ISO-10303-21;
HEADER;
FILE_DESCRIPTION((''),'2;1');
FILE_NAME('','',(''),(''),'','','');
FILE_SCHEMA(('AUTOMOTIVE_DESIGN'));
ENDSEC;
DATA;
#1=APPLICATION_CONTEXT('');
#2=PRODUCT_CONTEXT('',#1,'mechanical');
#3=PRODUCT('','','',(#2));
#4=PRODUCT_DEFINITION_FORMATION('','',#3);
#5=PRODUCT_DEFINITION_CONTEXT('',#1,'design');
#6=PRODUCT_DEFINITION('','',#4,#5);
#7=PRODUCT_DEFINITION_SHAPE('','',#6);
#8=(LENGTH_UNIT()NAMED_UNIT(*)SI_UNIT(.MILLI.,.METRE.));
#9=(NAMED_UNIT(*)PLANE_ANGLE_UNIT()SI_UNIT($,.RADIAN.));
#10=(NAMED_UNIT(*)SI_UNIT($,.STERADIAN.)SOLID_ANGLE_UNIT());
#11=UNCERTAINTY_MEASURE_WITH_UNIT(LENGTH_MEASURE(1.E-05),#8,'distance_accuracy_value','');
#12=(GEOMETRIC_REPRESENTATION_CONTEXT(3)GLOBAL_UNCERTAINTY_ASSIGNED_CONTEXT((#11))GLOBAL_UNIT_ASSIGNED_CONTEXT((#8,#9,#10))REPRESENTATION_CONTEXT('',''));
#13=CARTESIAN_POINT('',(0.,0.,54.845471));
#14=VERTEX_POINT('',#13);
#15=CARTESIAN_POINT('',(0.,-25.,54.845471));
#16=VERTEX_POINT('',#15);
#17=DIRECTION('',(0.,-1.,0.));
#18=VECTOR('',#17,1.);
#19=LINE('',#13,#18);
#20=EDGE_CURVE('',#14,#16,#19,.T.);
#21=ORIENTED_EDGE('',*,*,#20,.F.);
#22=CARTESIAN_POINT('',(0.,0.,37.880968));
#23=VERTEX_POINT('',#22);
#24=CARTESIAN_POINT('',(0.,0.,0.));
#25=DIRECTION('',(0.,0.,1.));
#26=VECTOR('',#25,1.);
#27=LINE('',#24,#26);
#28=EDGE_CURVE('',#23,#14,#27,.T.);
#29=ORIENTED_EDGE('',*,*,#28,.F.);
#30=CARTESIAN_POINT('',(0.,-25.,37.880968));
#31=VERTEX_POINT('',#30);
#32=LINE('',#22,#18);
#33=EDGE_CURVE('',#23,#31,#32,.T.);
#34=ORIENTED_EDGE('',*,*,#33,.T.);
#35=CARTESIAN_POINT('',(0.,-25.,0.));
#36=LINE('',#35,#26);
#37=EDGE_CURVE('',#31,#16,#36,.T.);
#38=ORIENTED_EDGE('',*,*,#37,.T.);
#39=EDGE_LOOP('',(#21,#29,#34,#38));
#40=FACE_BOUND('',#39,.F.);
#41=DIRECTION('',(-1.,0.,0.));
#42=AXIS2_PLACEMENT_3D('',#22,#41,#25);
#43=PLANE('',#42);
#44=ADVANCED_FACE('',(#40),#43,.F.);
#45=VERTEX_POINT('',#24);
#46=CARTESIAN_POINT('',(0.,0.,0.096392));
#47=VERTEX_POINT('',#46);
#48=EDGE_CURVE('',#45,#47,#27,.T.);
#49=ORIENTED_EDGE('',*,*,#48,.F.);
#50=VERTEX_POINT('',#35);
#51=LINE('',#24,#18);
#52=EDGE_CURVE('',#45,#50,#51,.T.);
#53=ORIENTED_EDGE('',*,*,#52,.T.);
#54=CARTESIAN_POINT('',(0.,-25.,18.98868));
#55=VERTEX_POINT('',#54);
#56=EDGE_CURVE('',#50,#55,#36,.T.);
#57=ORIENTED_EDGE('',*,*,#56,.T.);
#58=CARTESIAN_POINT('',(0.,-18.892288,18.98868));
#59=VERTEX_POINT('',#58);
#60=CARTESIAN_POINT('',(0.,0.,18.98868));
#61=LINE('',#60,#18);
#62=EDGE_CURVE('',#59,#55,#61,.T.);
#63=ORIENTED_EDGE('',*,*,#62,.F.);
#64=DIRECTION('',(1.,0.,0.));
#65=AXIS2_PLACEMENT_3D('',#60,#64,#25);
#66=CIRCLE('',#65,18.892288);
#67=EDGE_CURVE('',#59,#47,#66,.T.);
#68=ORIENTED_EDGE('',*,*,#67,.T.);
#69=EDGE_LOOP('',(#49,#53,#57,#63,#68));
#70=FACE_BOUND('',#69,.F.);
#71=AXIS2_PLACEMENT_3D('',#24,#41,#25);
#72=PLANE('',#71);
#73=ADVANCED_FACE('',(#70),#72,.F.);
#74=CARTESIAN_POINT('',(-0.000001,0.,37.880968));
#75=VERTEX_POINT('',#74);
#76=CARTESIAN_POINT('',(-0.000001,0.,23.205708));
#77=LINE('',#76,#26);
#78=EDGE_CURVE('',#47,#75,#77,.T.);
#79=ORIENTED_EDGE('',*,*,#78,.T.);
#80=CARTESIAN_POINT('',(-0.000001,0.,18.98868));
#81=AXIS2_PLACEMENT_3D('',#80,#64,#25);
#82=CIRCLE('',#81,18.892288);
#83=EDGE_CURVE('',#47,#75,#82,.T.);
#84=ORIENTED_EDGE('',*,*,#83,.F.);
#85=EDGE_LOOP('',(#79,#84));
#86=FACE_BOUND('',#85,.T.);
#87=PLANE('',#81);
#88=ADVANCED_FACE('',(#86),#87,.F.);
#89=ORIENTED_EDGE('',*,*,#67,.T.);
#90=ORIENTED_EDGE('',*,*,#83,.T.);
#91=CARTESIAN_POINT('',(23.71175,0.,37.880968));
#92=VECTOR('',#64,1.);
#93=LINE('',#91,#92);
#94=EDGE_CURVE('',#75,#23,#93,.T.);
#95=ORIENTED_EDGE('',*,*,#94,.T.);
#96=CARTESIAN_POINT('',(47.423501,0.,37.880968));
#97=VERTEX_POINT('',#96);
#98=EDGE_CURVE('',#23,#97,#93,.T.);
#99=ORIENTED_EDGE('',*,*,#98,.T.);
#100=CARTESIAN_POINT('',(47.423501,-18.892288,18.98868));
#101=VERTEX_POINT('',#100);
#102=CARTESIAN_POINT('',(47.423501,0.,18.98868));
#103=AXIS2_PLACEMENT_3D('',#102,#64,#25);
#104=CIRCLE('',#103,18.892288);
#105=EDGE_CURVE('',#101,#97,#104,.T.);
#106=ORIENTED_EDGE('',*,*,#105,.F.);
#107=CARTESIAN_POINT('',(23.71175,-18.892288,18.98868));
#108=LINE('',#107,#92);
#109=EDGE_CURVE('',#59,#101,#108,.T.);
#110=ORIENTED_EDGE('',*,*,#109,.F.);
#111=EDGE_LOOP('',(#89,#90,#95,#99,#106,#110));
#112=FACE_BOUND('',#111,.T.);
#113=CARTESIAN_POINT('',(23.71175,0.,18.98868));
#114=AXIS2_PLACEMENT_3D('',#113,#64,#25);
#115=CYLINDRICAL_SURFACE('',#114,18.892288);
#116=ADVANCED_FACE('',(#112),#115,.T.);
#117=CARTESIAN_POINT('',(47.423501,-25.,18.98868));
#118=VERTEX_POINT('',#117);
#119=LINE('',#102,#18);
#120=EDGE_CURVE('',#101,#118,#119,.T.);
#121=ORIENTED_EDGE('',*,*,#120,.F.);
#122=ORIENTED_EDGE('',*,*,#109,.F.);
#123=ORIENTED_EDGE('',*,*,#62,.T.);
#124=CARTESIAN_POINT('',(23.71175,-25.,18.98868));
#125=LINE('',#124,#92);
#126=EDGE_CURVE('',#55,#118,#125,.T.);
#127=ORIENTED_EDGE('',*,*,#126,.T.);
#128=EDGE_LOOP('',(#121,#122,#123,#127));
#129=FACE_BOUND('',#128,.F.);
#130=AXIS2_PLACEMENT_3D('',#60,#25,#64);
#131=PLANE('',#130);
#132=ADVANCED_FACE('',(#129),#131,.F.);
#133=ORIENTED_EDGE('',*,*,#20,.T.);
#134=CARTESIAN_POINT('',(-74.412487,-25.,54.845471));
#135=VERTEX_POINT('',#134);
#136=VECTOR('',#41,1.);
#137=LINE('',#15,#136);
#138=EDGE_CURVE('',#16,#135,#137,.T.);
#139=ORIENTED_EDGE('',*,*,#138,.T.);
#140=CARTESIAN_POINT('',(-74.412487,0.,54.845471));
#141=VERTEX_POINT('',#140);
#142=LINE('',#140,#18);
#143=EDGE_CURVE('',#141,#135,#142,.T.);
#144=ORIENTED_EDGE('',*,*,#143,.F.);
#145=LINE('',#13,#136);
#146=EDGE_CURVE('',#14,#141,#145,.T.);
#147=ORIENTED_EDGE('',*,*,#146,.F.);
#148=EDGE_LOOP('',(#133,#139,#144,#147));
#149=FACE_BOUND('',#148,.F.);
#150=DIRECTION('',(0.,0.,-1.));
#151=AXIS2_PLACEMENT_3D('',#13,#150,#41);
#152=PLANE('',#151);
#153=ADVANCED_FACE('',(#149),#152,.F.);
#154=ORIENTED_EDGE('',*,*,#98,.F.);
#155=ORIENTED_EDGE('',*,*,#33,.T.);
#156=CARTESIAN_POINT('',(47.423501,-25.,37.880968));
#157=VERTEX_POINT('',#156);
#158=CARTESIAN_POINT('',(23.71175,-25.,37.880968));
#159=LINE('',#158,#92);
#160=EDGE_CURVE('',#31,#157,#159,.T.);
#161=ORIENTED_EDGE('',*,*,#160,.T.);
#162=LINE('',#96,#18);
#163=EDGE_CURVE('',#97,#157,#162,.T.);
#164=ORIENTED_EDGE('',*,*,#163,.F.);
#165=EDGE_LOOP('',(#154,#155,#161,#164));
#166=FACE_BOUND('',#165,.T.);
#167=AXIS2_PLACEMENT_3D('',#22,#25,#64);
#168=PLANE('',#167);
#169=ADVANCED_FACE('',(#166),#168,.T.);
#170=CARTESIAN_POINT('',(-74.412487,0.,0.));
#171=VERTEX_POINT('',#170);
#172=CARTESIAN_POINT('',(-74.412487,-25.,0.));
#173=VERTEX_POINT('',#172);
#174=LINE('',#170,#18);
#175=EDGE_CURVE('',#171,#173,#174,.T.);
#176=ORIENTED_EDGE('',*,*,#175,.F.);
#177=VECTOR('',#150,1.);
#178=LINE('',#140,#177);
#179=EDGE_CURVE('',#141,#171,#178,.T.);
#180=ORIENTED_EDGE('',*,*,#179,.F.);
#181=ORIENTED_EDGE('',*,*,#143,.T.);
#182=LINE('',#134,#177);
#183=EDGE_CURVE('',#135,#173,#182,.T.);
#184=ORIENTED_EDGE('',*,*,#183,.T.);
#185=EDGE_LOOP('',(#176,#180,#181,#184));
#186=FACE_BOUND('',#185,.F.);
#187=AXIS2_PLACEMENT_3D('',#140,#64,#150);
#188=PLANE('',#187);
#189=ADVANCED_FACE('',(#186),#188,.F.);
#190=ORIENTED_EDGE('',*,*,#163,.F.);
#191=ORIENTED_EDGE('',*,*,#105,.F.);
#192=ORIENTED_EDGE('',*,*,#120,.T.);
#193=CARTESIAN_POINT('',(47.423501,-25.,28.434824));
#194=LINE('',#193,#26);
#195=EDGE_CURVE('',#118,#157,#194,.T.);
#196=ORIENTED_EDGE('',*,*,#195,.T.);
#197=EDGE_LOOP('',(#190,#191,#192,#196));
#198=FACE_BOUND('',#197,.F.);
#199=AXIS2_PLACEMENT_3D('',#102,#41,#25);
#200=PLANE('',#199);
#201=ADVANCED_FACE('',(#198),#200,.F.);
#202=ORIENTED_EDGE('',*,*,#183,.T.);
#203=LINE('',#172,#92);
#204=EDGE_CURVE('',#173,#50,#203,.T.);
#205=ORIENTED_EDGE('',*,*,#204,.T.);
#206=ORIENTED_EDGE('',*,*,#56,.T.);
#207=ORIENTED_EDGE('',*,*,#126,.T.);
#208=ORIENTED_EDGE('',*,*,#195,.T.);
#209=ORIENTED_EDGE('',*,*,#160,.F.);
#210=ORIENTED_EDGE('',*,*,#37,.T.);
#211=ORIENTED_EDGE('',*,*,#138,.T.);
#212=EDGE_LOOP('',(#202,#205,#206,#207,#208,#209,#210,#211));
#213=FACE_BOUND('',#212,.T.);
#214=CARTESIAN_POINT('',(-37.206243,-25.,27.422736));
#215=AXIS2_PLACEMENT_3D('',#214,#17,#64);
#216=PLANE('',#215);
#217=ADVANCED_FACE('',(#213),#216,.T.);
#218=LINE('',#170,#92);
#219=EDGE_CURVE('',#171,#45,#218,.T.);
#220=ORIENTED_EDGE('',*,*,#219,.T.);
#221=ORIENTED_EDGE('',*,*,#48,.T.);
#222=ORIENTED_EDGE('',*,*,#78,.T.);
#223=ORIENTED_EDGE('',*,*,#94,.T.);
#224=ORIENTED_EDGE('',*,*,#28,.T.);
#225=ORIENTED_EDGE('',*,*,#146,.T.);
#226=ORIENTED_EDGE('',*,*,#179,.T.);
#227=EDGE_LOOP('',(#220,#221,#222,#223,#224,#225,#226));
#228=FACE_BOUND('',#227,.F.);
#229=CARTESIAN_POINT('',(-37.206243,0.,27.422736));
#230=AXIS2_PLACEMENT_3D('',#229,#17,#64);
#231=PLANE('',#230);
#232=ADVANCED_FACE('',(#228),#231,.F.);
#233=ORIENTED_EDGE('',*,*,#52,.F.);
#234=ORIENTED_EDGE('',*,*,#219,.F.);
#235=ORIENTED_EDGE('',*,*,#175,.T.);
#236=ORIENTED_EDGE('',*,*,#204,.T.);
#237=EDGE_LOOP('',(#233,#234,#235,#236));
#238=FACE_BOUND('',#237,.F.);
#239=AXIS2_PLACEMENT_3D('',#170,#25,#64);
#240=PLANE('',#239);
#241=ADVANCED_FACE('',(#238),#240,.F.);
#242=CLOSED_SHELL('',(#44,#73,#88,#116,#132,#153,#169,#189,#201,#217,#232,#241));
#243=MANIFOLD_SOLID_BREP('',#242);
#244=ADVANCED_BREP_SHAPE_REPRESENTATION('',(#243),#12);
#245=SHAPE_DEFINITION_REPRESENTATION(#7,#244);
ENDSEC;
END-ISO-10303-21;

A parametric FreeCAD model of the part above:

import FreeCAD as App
import Part
import Sketcher

V = App.Vector


def add_polygon(sketch, points):
    """Adds a closed chain of lines whose ends are joined by coincident constraints."""
    first, n = sketch.GeometryCount, len(points)
    for a, b in zip(points, points[1:] + points[:1]):
        sketch.addGeometry(Part.LineSegment(App.Vector(*a, 0), App.Vector(*b, 0)), False)
    for i in range(n):
        sketch.addConstraint(Sketcher.Constraint("Coincident", first + i, 2, first + (i + 1) % n, 1))

doc = App.newDocument("Part")
body = doc.addObject("PartDesign::Body", "Body")

# Sketch on XZ plane
sketch1 = body.newObject("Sketcher::SketchObject", "Sketch")
sketch1.AttachmentSupport = (doc.getObject("XZ_Plane"), [""])
sketch1.MapMode = "FlatFace"
add_polygon(sketch1, [(0, 38), (0, 19), (47, 19), (47, 38)])  # lines 0-3
sketch1.addGeometry(Part.LineSegment(V(0, 19, 0), V(47, 19, 0)), True)  # axis
sketch1.addConstraint(Sketcher.Constraint("Vertical", 0))
sketch1.addConstraint(Sketcher.Constraint("Horizontal", 1))
sketch1.addConstraint(Sketcher.Constraint("Vertical", 2))
sketch1.addConstraint(Sketcher.Constraint("Horizontal", 3))
sketch1.addConstraint(Sketcher.Constraint("Horizontal", 4))
sketch1.addConstraint(Sketcher.Constraint("Coincident", 4, 1, 0, 2))
sketch1.addConstraint(Sketcher.Constraint("PointOnObject", 0, 2, -2))
sketch1.addConstraint(Sketcher.Constraint("Vertical", 2, 2, 4, 2))
sketch1.addConstraint(Sketcher.Constraint("DistanceX", 1, 1, 1, 2, 47.423501))
sketch1.addConstraint(Sketcher.Constraint("DistanceY", 0, 2, 0, 1, 18.892288))
sketch1.addConstraint(Sketcher.Constraint("DistanceY", -1, 1, 0, 2, 18.98868))
revolution = body.newObject("PartDesign::Revolution", "Revolution")
revolution.Profile = sketch1
revolution.ReferenceAxis = (sketch1, ["Axis0"])
revolution.Angle = 360

# Sketch on XZ plane
sketch2 = body.newObject("Sketcher::SketchObject", "Sketch001")
sketch2.AttachmentSupport = (doc.getObject("XZ_Plane"), [""])
sketch2.MapMode = "FlatFace"
add_polygon(sketch2, [(0, 55), (-74, 55), (-74, 0), (0, 0), (0, 19), (47, 19), (47, 38), (0, 38)])  # lines 0-7
sketch2.addConstraint(Sketcher.Constraint("Horizontal", 0))
sketch2.addConstraint(Sketcher.Constraint("Vertical", 1))
sketch2.addConstraint(Sketcher.Constraint("Horizontal", 2))
sketch2.addConstraint(Sketcher.Constraint("Vertical", 3))
sketch2.addConstraint(Sketcher.Constraint("Horizontal", 4))
sketch2.addConstraint(Sketcher.Constraint("Vertical", 5))
sketch2.addConstraint(Sketcher.Constraint("Horizontal", 6))
sketch2.addConstraint(Sketcher.Constraint("Vertical", 7))
sketch2.addConstraint(Sketcher.Constraint("Coincident", 2, 2, -1, 1))
sketch2.addConstraint(Sketcher.Constraint("PointOnObject", 6, 2, -2))
sketch2.addConstraint(Sketcher.Constraint("DistanceX", 4, 1, 4, 2, 47.423501))
sketch2.addConstraint(Sketcher.Constraint("DistanceY", 1, 2, 1, 1, 54.845471))
sketch2.addConstraint(Sketcher.Constraint("DistanceY", 3, 1, 3, 2, 18.98868))
sketch2.addConstraint(Sketcher.Constraint("DistanceY", 5, 1, 5, 2, 18.892288))
sketch2.addConstraint(Sketcher.Constraint("DistanceX", 0, 2, 0, 1, 74.412487))
pad1 = body.newObject("PartDesign::Pad", "Pad")
pad1.Profile = sketch2
pad1.Length = 25

doc.recompute()
